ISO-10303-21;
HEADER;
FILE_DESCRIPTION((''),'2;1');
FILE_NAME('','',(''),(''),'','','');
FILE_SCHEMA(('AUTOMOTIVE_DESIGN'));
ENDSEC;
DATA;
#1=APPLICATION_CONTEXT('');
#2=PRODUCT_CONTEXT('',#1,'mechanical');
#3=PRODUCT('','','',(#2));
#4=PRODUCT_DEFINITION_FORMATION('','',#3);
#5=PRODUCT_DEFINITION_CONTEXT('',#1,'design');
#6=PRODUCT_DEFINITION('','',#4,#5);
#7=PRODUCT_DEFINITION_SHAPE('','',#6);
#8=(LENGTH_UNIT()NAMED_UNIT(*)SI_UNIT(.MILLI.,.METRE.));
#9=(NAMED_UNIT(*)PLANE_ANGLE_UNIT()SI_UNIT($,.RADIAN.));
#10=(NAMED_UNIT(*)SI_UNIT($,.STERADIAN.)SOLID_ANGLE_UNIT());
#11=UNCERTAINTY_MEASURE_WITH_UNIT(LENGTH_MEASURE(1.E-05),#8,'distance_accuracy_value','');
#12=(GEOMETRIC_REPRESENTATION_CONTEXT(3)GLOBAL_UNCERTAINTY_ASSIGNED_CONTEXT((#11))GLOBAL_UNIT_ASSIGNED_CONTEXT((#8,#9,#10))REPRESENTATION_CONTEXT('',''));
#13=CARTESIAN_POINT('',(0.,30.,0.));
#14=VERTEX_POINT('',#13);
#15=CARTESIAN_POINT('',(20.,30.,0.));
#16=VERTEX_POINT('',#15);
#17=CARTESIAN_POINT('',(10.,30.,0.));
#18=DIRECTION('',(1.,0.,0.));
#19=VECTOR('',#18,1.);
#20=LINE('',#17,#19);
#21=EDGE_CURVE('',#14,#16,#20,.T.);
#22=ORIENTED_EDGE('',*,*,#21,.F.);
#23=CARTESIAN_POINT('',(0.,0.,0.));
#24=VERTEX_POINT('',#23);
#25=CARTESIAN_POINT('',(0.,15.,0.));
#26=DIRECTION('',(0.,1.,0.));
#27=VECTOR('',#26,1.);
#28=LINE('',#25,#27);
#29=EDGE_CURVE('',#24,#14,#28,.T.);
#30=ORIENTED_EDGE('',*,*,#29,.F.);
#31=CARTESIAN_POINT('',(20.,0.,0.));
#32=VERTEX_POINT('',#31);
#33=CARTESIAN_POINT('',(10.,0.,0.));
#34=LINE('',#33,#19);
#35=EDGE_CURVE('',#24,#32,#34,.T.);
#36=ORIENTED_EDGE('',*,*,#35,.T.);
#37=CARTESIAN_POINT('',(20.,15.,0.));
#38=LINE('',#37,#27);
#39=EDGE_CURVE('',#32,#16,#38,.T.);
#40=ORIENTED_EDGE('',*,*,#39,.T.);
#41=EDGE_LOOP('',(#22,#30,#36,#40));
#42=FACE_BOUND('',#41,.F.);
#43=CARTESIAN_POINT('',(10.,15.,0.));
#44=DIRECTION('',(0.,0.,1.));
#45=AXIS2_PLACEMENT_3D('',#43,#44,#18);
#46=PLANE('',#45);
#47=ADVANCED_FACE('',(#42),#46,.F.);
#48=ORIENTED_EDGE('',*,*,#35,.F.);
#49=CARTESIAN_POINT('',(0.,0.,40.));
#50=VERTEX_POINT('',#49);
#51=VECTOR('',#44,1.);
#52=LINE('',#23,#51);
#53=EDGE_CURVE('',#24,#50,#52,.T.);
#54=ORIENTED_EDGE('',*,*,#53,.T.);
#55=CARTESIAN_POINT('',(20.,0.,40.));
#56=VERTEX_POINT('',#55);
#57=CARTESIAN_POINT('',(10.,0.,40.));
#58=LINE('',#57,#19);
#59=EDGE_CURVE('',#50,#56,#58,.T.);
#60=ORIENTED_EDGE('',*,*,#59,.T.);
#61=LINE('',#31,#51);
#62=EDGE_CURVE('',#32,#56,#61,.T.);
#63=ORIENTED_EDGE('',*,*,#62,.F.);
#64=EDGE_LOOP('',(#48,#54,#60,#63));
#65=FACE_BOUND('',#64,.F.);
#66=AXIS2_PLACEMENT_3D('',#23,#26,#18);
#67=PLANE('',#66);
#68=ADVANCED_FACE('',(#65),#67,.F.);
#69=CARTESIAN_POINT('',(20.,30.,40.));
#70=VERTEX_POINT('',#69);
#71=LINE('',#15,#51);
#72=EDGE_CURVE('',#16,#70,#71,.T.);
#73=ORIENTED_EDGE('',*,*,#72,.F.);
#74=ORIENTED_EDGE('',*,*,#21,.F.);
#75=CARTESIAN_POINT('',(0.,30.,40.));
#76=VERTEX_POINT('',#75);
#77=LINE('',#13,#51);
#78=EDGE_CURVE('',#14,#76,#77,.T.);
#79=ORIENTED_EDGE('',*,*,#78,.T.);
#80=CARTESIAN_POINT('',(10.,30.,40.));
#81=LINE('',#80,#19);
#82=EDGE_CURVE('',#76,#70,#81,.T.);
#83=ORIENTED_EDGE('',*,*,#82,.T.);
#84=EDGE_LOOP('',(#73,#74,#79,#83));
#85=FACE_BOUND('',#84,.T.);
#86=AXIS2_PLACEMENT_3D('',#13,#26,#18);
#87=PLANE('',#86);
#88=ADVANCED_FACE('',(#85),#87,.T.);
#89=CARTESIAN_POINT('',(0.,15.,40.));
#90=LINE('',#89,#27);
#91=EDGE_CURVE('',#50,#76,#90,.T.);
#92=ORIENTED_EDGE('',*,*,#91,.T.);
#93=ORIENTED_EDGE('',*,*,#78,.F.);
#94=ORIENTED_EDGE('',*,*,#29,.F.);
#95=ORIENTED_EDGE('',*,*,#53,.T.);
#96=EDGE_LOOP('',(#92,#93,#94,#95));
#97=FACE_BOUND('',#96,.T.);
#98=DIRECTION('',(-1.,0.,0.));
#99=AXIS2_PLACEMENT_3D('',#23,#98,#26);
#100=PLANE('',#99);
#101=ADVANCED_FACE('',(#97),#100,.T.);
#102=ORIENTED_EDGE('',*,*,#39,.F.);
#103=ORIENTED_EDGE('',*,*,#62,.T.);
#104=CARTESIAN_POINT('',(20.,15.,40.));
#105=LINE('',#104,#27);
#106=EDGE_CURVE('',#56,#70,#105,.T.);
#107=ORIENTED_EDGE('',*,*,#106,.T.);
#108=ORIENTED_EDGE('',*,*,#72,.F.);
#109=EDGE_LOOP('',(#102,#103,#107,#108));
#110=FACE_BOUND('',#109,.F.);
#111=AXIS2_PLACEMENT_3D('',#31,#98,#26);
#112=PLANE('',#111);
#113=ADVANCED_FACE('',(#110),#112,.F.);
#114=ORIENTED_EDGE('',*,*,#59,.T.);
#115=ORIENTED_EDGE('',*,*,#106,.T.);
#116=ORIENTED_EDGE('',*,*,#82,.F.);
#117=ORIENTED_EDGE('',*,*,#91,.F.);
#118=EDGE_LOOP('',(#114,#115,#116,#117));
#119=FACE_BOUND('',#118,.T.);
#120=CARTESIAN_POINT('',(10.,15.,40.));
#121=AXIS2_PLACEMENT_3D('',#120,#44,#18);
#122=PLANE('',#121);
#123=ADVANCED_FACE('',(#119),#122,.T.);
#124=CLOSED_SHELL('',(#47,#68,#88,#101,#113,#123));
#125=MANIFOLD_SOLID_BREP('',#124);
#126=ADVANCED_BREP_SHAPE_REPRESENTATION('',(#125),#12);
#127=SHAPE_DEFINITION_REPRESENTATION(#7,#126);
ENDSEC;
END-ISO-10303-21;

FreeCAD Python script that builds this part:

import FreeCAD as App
import Part
import Sketcher

doc = App.newDocument("Part")
body = doc.addObject("PartDesign::Body", "Body")

# Sketch on XY plane
sketch1 = body.newObject("Sketcher::SketchObject", "Sketch")
sketch1.AttachmentSupport = (doc.getObject("XY_Plane"), [""])
sketch1.MapMode = "FlatFace"
sketch1.addGeometry([
    Part.LineSegment(App.Vector(0, 30, 0), App.Vector(0, 0, 0)),
    Part.LineSegment(App.Vector(0, 0, 0), App.Vector(20, 0, 0)),
    Part.LineSegment(App.Vector(20, 0, 0), App.Vector(20, 30, 0)),
    Part.LineSegment(App.Vector(20, 30, 0), App.Vector(0, 30, 0)),
], False)
sketch1.addConstraint([
    Sketcher.Constraint("Coincident", 0, 2, 1, 1),
    Sketcher.Constraint("Coincident", 1, 2, 2, 1),
    Sketcher.Constraint("Coincident", 2, 2, 3, 1),
    Sketcher.Constraint("Coincident", 3, 2, 0, 1),
    Sketcher.Constraint("Vertical", 0),
    Sketcher.Constraint("Horizontal", 1),
    Sketcher.Constraint("Vertical", 2),
    Sketcher.Constraint("Horizontal", 3),
    Sketcher.Constraint("Coincident", 0, 2, -1, 1),
    Sketcher.Constraint("DistanceX", 1, 1, 1, 2, 20.0),
    Sketcher.Constraint("DistanceY", 0, 2, 0, 1, 30.0),
])
pad1 = body.newObject("PartDesign::Pad", "Pad")
pad1.Profile = sketch1
pad1.Length = 40

doc.recompute()
